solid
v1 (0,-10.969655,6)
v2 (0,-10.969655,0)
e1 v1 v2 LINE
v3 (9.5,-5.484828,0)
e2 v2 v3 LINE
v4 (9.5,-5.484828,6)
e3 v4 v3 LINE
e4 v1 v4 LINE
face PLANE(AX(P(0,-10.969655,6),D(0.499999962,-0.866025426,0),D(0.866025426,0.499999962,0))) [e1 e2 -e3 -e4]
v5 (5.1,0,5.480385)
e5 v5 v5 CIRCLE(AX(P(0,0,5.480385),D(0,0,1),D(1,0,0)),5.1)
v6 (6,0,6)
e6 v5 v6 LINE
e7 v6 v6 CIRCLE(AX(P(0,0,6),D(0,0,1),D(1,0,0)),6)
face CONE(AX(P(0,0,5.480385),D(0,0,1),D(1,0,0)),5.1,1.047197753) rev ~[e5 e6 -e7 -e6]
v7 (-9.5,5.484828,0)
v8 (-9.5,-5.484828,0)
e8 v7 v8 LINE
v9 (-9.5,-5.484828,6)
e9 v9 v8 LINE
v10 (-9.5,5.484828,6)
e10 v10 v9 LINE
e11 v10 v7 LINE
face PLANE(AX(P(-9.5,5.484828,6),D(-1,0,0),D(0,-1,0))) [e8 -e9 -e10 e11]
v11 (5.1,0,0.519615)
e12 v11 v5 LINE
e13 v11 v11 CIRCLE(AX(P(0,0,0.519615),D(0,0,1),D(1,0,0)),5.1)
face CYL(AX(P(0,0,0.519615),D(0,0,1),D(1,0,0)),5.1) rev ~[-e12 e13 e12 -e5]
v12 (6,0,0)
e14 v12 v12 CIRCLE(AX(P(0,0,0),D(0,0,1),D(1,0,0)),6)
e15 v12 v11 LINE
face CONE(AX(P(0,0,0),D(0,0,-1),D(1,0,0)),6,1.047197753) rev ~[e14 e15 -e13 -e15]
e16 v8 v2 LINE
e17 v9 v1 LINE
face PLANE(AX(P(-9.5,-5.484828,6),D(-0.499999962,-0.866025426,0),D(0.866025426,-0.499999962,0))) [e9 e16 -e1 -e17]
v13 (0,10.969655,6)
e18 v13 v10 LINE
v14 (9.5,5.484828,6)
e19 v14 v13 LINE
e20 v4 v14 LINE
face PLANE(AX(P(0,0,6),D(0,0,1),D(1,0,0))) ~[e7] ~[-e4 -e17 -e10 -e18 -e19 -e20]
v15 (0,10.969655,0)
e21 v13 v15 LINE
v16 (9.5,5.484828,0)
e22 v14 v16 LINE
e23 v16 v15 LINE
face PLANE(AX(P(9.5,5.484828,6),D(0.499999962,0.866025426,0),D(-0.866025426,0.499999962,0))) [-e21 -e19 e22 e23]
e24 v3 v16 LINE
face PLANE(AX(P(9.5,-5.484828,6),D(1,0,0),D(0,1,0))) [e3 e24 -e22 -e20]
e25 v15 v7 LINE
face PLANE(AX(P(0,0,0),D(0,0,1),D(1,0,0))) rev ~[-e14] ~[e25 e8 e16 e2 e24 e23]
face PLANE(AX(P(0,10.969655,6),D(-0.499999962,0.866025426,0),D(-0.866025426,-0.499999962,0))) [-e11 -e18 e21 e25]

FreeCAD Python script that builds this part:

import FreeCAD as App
import Part
import Sketcher
from FreeCAD import Vector
Q = App.Units.Quantity

doc = App.newDocument("Part")
body = doc.addObject("PartDesign::Body", "Body")

# Sketch on XZ plane
sketch1 = body.newObject("Sketcher::SketchObject", "Sketch")
sketch1.AttachmentSupport = (doc.getObject("XZ_Plane"), [""])
sketch1.MapMode = "FlatFace"
sketch1.addGeometry(Part.LineSegment(Vector(5.1, 0.5, 0), Vector(6, 0, 0)), False)
sketch1.addGeometry(Part.LineSegment(Vector(6, 0, 0), Vector(12, 0, 0)), False)
sketch1.addGeometry(Part.LineSegment(Vector(12, 0, 0), Vector(12, 6, 0)), False)
sketch1.addGeometry(Part.LineSegment(Vector(12, 6, 0), Vector(6, 6, 0)), False)
sketch1.addGeometry(Part.LineSegment(Vector(6, 6, 0), Vector(5.1, 5.5, 0)), False)
sketch1.addGeometry(Part.LineSegment(Vector(5.1, 5.5, 0), Vector(5.1, 0.5, 0)), False)
sketch1.addConstraint(Sketcher.Constraint("Coincident", 0, 2, 1, 1))
sketch1.addConstraint(Sketcher.Constraint("Coincident", 1, 2, 2, 1))
sketch1.addConstraint(Sketcher.Constraint("Coincident", 2, 2, 3, 1))
sketch1.addConstraint(Sketcher.Constraint("Coincident", 3, 2, 4, 1))
sketch1.addConstraint(Sketcher.Constraint("Coincident", 4, 2, 5, 1))
sketch1.addConstraint(Sketcher.Constraint("Coincident", 5, 2, 0, 1))
sketch1.addConstraint(Sketcher.Constraint("Horizontal", 1))
sketch1.addConstraint(Sketcher.Constraint("Vertical", 2))
sketch1.addConstraint(Sketcher.Constraint("Horizontal", 3))
sketch1.addConstraint(Sketcher.Constraint("Vertical", 5))
sketch1.addConstraint(Sketcher.Constraint("PointOnObject", 0, 2, -1))
sketch1.addConstraint(Sketcher.Constraint("Vertical", 0, 2, 3, 2))
sketch1.addConstraint(Sketcher.Constraint("Equal", 3, 2))
sketch1.addConstraint(Sketcher.Constraint("Equal", 0, 4))
sketch1.addConstraint(Sketcher.Constraint("DistanceX", 1, 1, 1, 2, 6.0))
sketch1.addConstraint(Sketcher.Constraint("Angle", 0, Q("-29.999988 deg")))
sketch1.addConstraint(Sketcher.Constraint("DistanceX", -1, 1, 0, 2, 6.0))
sketch1.addConstraint(Sketcher.Constraint("DistanceX", -1, 1, 4, 2, 5.1))
revolution = body.newObject("PartDesign::Revolution", "Revolution")
revolution.Profile = sketch1
revolution.ReferenceAxis = (sketch1, ["V_Axis"])
revolution.Angle = 360

# Sketch on XY plane
sketch2 = body.newObject("Sketcher::SketchObject", "Sketch001")
sketch2.AttachmentSupport = (doc.getObject("XY_Plane"), [""])
sketch2.MapMode = "FlatFace"
sketch2.AttachmentOffset = App.Placement(Vector(0, 0, 6), App.Rotation())
sketch2.addGeometry(Part.Circle(Vector(0, 0, 0), Vector(0, 0, 1), 12), False)
sketch2.addGeometry(Part.LineSegment(Vector(10, 5, 0), Vector(10, -5, 0)), False)
sketch2.addGeometry(Part.LineSegment(Vector(10, -5, 0), Vector(0, -11, 0)), False)
sketch2.addGeometry(Part.LineSegment(Vector(0, -11, 0), Vector(-10, -5, 0)), False)
sketch2.addGeometry(Part.LineSegment(Vector(-10, -5, 0), Vector(-10, 5, 0)), False)
sketch2.addGeometry(Part.LineSegment(Vector(-10, 5, 0), Vector(0, 11, 0)), False)
sketch2.addGeometry(Part.LineSegment(Vector(0, 11, 0), Vector(10, 5, 0)), False)
sketch2.addConstraint(Sketcher.Constraint("Coincident", 1, 2, 2, 1))
sketch2.addConstraint(Sketcher.Constraint("Coincident", 2, 2, 3, 1))
sketch2.addConstraint(Sketcher.Constraint("Coincident", 3, 2, 4, 1))
sketch2.addConstraint(Sketcher.Constraint("Coincident", 4, 2, 5, 1))
sketch2.addConstraint(Sketcher.Constraint("Coincident", 5, 2, 6, 1))
sketch2.addConstraint(Sketcher.Constraint("Coincident", 6, 2, 1, 1))
sketch2.addConstraint(Sketcher.Constraint("Vertical", 1))
sketch2.addConstraint(Sketcher.Constraint("Vertical", 4))
sketch2.addConstraint(Sketcher.Constraint("Coincident", 0, 3, -1, 1))
sketch2.addConstraint(Sketcher.Constraint("Symmetric", 1, 2, 4, 2, -1, 1))
sketch2.addConstraint(Sketcher.Constraint("Symmetric", 2, 2, 5, 2, -1, 1))
sketch2.addConstraint(Sketcher.Constraint("PointOnObject", 2, 2, -2))
sketch2.addConstraint(Sketcher.Constraint("Parallel", 3, 6))
sketch2.addConstraint(Sketcher.Constraint("Horizontal", 1, 2, 3, 2))
sketch2.addConstraint(Sketcher.Constraint("Diameter", 0, 24.0))
sketch2.addConstraint(Sketcher.Constraint("Angle", 2, Q("-150.000003 deg")))
sketch2.addConstraint(Sketcher.Constraint("DistanceX", 3, 2, 1, 2, 19.0))
sketch2.addConstraint(Sketcher.Constraint("DistanceY", 1, 2, 1, 1, 10.969656))
pocket1 = body.newObject("PartDesign::Pocket", "Pocket")
pocket1.Profile = sketch2
pocket1.Length = 6

doc.recompute()
